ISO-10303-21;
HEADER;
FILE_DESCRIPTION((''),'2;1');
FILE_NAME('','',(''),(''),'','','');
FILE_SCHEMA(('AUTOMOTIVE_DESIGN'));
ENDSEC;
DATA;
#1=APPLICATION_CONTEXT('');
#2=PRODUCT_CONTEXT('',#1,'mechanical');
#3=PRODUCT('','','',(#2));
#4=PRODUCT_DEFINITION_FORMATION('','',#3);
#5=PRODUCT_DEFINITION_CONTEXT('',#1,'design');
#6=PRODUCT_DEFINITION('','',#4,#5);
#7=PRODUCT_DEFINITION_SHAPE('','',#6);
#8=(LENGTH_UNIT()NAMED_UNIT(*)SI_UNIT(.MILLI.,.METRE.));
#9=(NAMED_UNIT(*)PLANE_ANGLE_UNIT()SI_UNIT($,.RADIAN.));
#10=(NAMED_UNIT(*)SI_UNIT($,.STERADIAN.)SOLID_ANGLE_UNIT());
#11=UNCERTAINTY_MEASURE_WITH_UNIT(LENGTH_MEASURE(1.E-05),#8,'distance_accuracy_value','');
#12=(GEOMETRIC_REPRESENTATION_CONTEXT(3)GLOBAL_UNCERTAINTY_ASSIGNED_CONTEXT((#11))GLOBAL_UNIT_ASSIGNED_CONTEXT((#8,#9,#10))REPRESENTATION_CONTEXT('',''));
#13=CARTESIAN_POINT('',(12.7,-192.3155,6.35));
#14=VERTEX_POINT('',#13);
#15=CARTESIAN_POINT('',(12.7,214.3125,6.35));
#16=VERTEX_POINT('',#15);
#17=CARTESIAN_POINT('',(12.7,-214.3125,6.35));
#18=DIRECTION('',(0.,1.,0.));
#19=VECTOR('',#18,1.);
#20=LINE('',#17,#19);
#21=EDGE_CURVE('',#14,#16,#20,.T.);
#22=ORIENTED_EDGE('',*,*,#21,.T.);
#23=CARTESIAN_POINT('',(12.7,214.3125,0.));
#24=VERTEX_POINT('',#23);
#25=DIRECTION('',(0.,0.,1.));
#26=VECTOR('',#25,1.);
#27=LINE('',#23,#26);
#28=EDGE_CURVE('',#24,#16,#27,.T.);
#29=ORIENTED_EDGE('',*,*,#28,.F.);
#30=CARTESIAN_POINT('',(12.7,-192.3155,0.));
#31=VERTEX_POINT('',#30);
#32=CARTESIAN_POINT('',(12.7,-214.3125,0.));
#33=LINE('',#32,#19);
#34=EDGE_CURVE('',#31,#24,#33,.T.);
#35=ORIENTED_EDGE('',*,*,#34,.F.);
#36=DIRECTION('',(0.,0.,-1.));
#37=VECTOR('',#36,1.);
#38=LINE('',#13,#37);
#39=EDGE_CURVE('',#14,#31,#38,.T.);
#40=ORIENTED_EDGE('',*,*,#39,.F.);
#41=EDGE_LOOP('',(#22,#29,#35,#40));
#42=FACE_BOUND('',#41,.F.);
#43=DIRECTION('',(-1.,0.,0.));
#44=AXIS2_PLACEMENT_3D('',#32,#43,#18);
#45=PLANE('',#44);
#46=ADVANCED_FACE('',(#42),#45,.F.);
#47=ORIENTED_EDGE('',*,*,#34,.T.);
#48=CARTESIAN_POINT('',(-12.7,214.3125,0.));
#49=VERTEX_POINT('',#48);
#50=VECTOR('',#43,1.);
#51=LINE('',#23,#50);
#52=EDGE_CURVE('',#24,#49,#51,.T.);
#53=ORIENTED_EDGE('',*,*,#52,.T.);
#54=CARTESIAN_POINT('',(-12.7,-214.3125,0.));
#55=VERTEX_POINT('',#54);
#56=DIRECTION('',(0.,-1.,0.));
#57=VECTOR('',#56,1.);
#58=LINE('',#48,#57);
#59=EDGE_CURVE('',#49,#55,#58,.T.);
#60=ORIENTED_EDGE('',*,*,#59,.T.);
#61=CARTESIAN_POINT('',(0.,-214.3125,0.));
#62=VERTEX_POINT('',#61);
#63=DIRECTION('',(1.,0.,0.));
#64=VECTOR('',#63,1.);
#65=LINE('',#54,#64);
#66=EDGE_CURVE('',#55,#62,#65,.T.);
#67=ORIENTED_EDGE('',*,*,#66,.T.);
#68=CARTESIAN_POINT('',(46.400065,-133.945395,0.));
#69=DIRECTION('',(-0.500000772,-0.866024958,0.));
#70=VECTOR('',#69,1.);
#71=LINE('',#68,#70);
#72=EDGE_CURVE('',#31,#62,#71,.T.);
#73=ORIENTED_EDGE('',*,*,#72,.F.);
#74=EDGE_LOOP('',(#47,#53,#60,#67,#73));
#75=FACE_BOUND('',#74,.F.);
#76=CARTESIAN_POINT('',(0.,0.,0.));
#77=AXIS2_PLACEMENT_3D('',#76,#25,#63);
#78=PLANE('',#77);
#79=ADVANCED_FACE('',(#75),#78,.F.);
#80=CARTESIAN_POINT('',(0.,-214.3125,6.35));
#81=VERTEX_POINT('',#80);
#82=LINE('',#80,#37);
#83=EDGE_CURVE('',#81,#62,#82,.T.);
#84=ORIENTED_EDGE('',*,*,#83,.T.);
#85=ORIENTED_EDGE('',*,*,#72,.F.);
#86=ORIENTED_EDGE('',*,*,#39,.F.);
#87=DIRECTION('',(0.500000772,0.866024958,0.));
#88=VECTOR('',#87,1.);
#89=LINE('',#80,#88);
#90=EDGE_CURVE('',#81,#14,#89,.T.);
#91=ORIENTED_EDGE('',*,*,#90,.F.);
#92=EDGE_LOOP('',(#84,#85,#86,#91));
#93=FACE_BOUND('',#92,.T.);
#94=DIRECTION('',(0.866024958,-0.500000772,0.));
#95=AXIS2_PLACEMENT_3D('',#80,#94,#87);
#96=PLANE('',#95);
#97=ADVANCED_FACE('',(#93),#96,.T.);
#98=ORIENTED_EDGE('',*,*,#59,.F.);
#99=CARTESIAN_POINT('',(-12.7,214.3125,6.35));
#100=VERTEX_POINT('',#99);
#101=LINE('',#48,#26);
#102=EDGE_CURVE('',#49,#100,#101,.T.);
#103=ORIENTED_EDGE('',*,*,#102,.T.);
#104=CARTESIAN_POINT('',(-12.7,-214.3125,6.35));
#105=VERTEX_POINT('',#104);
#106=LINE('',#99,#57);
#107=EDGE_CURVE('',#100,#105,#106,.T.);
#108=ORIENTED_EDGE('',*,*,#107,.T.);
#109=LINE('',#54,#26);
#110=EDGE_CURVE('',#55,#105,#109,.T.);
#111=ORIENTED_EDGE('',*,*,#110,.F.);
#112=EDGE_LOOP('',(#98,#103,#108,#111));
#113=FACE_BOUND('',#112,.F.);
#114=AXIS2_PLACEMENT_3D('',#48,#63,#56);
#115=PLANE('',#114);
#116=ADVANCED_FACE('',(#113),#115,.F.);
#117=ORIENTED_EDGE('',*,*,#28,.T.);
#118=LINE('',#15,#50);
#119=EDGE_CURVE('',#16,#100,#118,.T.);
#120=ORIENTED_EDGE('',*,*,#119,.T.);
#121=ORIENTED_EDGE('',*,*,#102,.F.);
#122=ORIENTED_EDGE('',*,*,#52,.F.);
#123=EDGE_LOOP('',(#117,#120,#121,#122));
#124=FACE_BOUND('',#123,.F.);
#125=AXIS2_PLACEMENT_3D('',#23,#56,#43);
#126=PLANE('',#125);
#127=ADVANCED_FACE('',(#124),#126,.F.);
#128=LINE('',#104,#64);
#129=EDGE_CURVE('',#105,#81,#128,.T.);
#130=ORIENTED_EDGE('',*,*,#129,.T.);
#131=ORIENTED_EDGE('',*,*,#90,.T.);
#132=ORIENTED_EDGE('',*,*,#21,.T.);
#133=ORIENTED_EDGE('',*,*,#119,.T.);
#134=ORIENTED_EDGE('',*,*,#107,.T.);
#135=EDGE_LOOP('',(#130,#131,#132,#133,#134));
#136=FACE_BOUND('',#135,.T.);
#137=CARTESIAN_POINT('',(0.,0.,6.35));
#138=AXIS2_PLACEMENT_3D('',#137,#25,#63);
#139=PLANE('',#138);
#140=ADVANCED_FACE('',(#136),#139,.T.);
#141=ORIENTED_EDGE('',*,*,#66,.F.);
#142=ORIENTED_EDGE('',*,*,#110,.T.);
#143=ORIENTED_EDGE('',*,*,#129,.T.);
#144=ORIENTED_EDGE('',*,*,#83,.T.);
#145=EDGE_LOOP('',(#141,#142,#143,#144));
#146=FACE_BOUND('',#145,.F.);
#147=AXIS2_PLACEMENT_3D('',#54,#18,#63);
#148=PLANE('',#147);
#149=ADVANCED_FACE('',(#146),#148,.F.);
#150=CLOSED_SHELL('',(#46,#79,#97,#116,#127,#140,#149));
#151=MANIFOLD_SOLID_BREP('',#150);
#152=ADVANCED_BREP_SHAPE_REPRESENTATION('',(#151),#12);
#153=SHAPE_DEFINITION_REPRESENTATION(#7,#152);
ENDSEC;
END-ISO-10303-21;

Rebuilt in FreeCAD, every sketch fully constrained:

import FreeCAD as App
import Part
import Sketcher

V = App.Vector
Q = App.Units.Quantity


def add_polygon(sketch, points):
    """Adds a closed chain of lines whose ends are joined by coincident constraints."""
    first, n = sketch.GeometryCount, len(points)
    for a, b in zip(points, points[1:] + points[:1]):
        sketch.addGeometry(Part.LineSegment(App.Vector(*a, 0), App.Vector(*b, 0)), False)
    for i in range(n):
        sketch.addConstraint(Sketcher.Constraint("Coincident", first + i, 2, first + (i + 1) % n, 1))

doc = App.newDocument("Part")
body = doc.addObject("PartDesign::Body", "Body")

sketch1 = body.newObject("Sketcher::SketchObject", "Sketch")
sketch1.AttachmentSupport = (doc.getObject("XY_Plane"), [""])
sketch1.MapMode = "FlatFace"
add_polygon(sketch1, [(-12.7, 214.3125), (-12.7, -214.3125), (12.7, -214.3125), (12.7, 214.3125)])
sketch1.addConstraint([
    Sketcher.Constraint("Vertical", 0),
    Sketcher.Constraint("Horizontal", 1),
    Sketcher.Constraint("Vertical", 2),
    Sketcher.Constraint("Horizontal", 3),
    Sketcher.Constraint("Symmetric", 0, 2, 2, 2, -1, 1),
    Sketcher.Constraint("DistanceX", 0, 2, -1, 1, Q("0.5 in")),
    Sketcher.Constraint("DistanceY", 0, 2, 0, 1, Q("16.875 in")),
])
pad1 = body.newObject("PartDesign::Pad", "Pad")
pad1.Profile = sketch1
pad1.Length = Q("0.25 in")

sketch2 = body.newObject("Sketcher::SketchObject", "Sketch001")
sketch2.AttachmentSupport = (doc.getObject("XY_Plane"), [""])
sketch2.MapMode = "FlatFace"
sketch2.AttachmentOffset = App.Placement(V(0, 0, 0.25 * 25.4), App.Rotation())
add_polygon(sketch2, [(12.7, -192.3155), (0, -214.3125), (12.7, -214.3125)])
sketch2.addConstraint([
    Sketcher.Constraint("Horizontal", 1),
    Sketcher.Constraint("Vertical", 2),
    Sketcher.Constraint("PointOnObject", 0, 2, -2),
    Sketcher.Constraint("Distance", 0, Q("1 in")),
    Sketcher.Constraint("DistanceX", 1, 1, 1, 2, Q("0.5 in")),
    Sketcher.Constraint("DistanceY", 0, 2, -1, 1, Q("8.4375 in")),
])
pocket1 = body.newObject("PartDesign::Pocket", "Pocket")
pocket1.Profile = sketch2
pocket1.Type = "UpToFirst"

doc.recompute()
